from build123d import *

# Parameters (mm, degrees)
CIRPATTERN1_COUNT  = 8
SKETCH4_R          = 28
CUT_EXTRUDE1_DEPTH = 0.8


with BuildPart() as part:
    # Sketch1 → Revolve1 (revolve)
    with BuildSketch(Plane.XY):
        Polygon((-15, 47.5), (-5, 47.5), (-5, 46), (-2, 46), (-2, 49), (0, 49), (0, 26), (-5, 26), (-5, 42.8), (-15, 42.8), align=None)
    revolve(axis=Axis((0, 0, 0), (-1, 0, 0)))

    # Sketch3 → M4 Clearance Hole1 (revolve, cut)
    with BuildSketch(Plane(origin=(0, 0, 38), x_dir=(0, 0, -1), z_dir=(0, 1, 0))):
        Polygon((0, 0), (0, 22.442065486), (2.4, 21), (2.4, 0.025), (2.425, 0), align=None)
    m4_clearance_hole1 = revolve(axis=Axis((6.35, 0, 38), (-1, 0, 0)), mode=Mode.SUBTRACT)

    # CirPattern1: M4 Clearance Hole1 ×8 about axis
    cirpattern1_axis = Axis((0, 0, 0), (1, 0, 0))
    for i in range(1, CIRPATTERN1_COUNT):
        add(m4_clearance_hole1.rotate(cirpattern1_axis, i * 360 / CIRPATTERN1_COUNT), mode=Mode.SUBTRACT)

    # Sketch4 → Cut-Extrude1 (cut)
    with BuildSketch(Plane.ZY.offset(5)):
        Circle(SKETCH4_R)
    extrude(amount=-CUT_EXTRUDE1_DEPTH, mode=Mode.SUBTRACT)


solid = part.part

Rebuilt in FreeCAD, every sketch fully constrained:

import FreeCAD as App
import Part
import Sketcher
from FreeCAD import Vector
Q = App.Units.Quantity

doc = App.newDocument("Part")
body = doc.addObject("PartDesign::Body", "Body")

sketch1 = body.newObject("Sketcher::SketchObject", "Sketch")
sketch1.AttachmentSupport = (doc.getObject("XY_Plane"), [""])
sketch1.MapMode = "FlatFace"
sketch1.addGeometry(Part.LineSegment(Vector(-5, 47.5, 0), Vector(-15, 47.5, 0)), False)
sketch1.addGeometry(Part.LineSegment(Vector(-15, 47.5, 0), Vector(-15, 42.8, 0)), False)
sketch1.addGeometry(Part.LineSegment(Vector(-15, 42.8, 0), Vector(-5, 42.8, 0)), False)
sketch1.addGeometry(Part.LineSegment(Vector(-5, 42.8, 0), Vector(-5, 26, 0)), False)
sketch1.addGeometry(Part.LineSegment(Vector(-5, 26, 0), Vector(0, 26, 0)), False)
sketch1.addGeometry(Part.LineSegment(Vector(0, 26, 0), Vector(0, 49, 0)), False)
sketch1.addGeometry(Part.LineSegment(Vector(0, 49, 0), Vector(-2, 49, 0)), False)
sketch1.addGeometry(Part.LineSegment(Vector(-2, 49, 0), Vector(-2, 46, 0)), False)
sketch1.addGeometry(Part.LineSegment(Vector(-2, 46, 0), Vector(-5, 46, 0)), False)
sketch1.addGeometry(Part.LineSegment(Vector(-5, 46, 0), Vector(-5, 47.5, 0)), False)
sketch1.addConstraint(Sketcher.Constraint("Coincident", 0, 2, 1, 1))
sketch1.addConstraint(Sketcher.Constraint("Coincident", 1, 2, 2, 1))
sketch1.addConstraint(Sketcher.Constraint("Coincident", 2, 2, 3, 1))
sketch1.addConstraint(Sketcher.Constraint("Coincident", 3, 2, 4, 1))
sketch1.addConstraint(Sketcher.Constraint("Coincident", 4, 2, 5, 1))
sketch1.addConstraint(Sketcher.Constraint("Coincident", 5, 2, 6, 1))
sketch1.addConstraint(Sketcher.Constraint("Coincident", 6, 2, 7, 1))
sketch1.addConstraint(Sketcher.Constraint("Coincident", 7, 2, 8, 1))
sketch1.addConstraint(Sketcher.Constraint("Coincident", 8, 2, 9, 1))
sketch1.addConstraint(Sketcher.Constraint("Coincident", 9, 2, 0, 1))
sketch1.addConstraint(Sketcher.Constraint("Horizontal", 0))
sketch1.addConstraint(Sketcher.Constraint("Vertical", 1))
sketch1.addConstraint(Sketcher.Constraint("Horizontal", 2))
sketch1.addConstraint(Sketcher.Constraint("Vertical", 3))
sketch1.addConstraint(Sketcher.Constraint("Horizontal", 4))
sketch1.addConstraint(Sketcher.Constraint("Vertical", 5))
sketch1.addConstraint(Sketcher.Constraint("Horizontal", 6))
sketch1.addConstraint(Sketcher.Constraint("Vertical", 7))
sketch1.addConstraint(Sketcher.Constraint("Horizontal", 8))
sketch1.addConstraint(Sketcher.Constraint("Vertical", 9))
sketch1.addConstraint(Sketcher.Constraint("PointOnObject", 4, 2, -2))
sketch1.addConstraint(Sketcher.Constraint("Vertical", 3, 2, 8, 2))
sketch1.addConstraint(Sketcher.Constraint("Equal", 8, 7))
sketch1.addConstraint(Sketcher.Constraint("DistanceX", 0, 2, 0, 1, 10.0))
sketch1.addConstraint(Sketcher.Constraint("DistanceX", 4, 1, 4, 2, 5.0))
sketch1.addConstraint(Sketcher.Constraint("DistanceX", 6, 2, 6, 1, 2.0))
sketch1.addConstraint(Sketcher.Constraint("DistanceY", 5, 1, 5, 2, 23.0))
sketch1.addConstraint(Sketcher.Constraint("DistanceY", 1, 2, 1, 1, 4.7))
sketch1.addConstraint(Sketcher.Constraint("DistanceY", 3, 2, 3, 1, 16.8))
sketch1.addConstraint(Sketcher.Constraint("DistanceY", -1, 1, 3, 2, 26.0))
revolution = body.newObject("PartDesign::Revolution", "Revolution")
revolution.Profile = sketch1
revolution.ReferenceAxis = (sketch1, ["H_Axis"])
revolution.Angle = 360

sketch2 = body.newObject("Sketcher::SketchObject", "Sketch001")
sketch2.AttachmentSupport = (doc.getObject("XZ_Plane"), [""])
sketch2.MapMode = "FlatFace"
sketch2.addGeometry(Part.LineSegment(Vector(-22.442, 38, 0), Vector(0, 38, 0)), False)
sketch2.addGeometry(Part.LineSegment(Vector(0, 38, 0), Vector(0, 35.575, 0)), False)
sketch2.addGeometry(Part.LineSegment(Vector(0, 35.575, 0), Vector(-0.025, 35.6, 0)), False)
sketch2.addGeometry(Part.LineSegment(Vector(-0.025, 35.6, 0), Vector(-21, 35.6, 0)), False)
sketch2.addGeometry(Part.LineSegment(Vector(-21, 35.6, 0), Vector(-22.442, 38, 0)), False)
sketch2.addGeometry(Part.LineSegment(Vector(0, 38, 0), Vector(-22.442, 38, 0)), True)
sketch2.addConstraint(Sketcher.Constraint("Coincident", 0, 2, 1, 1))
sketch2.addConstraint(Sketcher.Constraint("Coincident", 1, 2, 2, 1))
sketch2.addConstraint(Sketcher.Constraint("Coincident", 2, 2, 3, 1))
sketch2.addConstraint(Sketcher.Constraint("Coincident", 3, 2, 4, 1))
sketch2.addConstraint(Sketcher.Constraint("Coincident", 4, 2, 0, 1))
sketch2.addConstraint(Sketcher.Constraint("Horizontal", 0))
sketch2.addConstraint(Sketcher.Constraint("Vertical", 1))
sketch2.addConstraint(Sketcher.Constraint("Horizontal", 3))
sketch2.addConstraint(Sketcher.Constraint("Horizontal", 5))
sketch2.addConstraint(Sketcher.Constraint("Coincident", 5, 1, 0, 2))
sketch2.addConstraint(Sketcher.Constraint("PointOnObject", 0, 2, -2))
sketch2.addConstraint(Sketcher.Constraint("Equal", 0, 5))
sketch2.addConstraint(Sketcher.Constraint("Angle", 2, Q("135 deg")))
sketch2.addConstraint(Sketcher.Constraint("Angle", 4, Q("121 deg")))
sketch2.addConstraint(Sketcher.Constraint("DistanceY", -1, 1, 0, 2, 38.0))
sketch2.addConstraint(Sketcher.Constraint("DistanceX", 3, 2, -1, 1, 21.0))
sketch2.addConstraint(Sketcher.Constraint("DistanceY", -1, 1, 2, 2, 35.6))
sketch2.addConstraint(Sketcher.Constraint("DistanceX", 3, 2, 3, 1, 20.975))
groove = body.newObject("PartDesign::Groove", "Groove")
groove.Profile = sketch2
groove.ReferenceAxis = (sketch2, ["Axis0"])
groove.Angle = 360
doc.recompute()

polarpattern = body.newObject("PartDesign::PolarPattern", "PolarPattern")
polarpattern.Originals = [groove]
polarpattern.Axis = (doc.getObject("X_Axis"), [""])
polarpattern.Angle = 360
polarpattern.Occurrences = 8
body.Tip = polarpattern

sketch3 = body.newObject("Sketcher::SketchObject", "Sketch002")
sketch3.AttachmentSupport = (doc.getObject("YZ_Plane"), [""])
sketch3.MapMode = "FlatFace"
sketch3.AttachmentOffset = App.Placement(Vector(0, 0, -5), App.Rotation())
sketch3.addGeometry(Part.Circle(Vector(0, 0, 0), Vector(0, 0, 1), 28), False)
sketch3.addConstraint(Sketcher.Constraint("Coincident", 0, 3, -1, 1))
sketch3.addConstraint(Sketcher.Constraint("Diameter", 0, 56.0))
pocket1 = body.newObject("PartDesign::Pocket", "Pocket")
pocket1.Profile = sketch3
pocket1.Length = 0.8
pocket1.Reversed = True

doc.recompute()
